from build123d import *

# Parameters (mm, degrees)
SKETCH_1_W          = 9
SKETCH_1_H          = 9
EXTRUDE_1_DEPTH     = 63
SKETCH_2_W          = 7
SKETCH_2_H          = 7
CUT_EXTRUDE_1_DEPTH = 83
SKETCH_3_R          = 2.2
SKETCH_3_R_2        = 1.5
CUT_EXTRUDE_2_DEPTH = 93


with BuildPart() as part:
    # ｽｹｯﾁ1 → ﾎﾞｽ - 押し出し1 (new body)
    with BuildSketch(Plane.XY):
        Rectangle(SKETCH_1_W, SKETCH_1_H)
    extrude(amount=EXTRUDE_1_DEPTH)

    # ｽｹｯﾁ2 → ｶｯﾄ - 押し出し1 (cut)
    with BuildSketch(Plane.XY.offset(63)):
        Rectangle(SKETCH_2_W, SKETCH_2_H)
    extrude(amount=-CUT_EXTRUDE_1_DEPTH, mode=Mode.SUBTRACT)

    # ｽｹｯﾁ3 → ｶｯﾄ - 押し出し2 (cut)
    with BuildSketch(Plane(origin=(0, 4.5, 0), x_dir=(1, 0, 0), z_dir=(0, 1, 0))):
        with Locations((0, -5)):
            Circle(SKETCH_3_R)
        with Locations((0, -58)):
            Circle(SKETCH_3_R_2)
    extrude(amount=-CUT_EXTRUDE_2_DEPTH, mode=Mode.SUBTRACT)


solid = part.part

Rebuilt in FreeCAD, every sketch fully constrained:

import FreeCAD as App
import Part
import Sketcher

doc = App.newDocument("Part")
body = doc.addObject("PartDesign::Body", "Body")

# Sketch on XY plane
sketch1 = body.newObject("Sketcher::SketchObject", "Sketch")
sketch1.AttachmentSupport = (doc.getObject("XY_Plane"), [""])
sketch1.MapMode = "FlatFace"
sketch1.addGeometry(Part.LineSegment(App.Vector(-4.5, 4.5, 0), App.Vector(-4.5, -4.5, 0)), False)
sketch1.addGeometry(Part.LineSegment(App.Vector(-4.5, -4.5, 0), App.Vector(4.5, -4.5, 0)), False)
sketch1.addGeometry(Part.LineSegment(App.Vector(4.5, -4.5, 0), App.Vector(4.5, 4.5, 0)), False)
sketch1.addGeometry(Part.LineSegment(App.Vector(4.5, 4.5, 0), App.Vector(-4.5, 4.5, 0)), False)
sketch1.addConstraint(Sketcher.Constraint("Coincident", 0, 2, 1, 1))
sketch1.addConstraint(Sketcher.Constraint("Coincident", 1, 2, 2, 1))
sketch1.addConstraint(Sketcher.Constraint("Coincident", 2, 2, 3, 1))
sketch1.addConstraint(Sketcher.Constraint("Coincident", 3, 2, 0, 1))
sketch1.addConstraint(Sketcher.Constraint("Vertical", 0))
sketch1.addConstraint(Sketcher.Constraint("Horizontal", 1))
sketch1.addConstraint(Sketcher.Constraint("Vertical", 2))
sketch1.addConstraint(Sketcher.Constraint("Horizontal", 3))
sketch1.addConstraint(Sketcher.Constraint("Symmetric", 0, 2, 2, 2, -1, 1))
sketch1.addConstraint(Sketcher.Constraint("Equal", 3, 0))
sketch1.addConstraint(Sketcher.Constraint("DistanceX", 1, 1, 1, 2, 9.0))
pad1 = body.newObject("PartDesign::Pad", "Pad")
pad1.Profile = sketch1
pad1.Length = 63

# Sketch on XY plane
sketch2 = body.newObject("Sketcher::SketchObject", "Sketch001")
sketch2.AttachmentSupport = (doc.getObject("XY_Plane"), [""])
sketch2.MapMode = "FlatFace"
sketch2.AttachmentOffset = App.Placement(App.Vector(0, 0, 63), App.Rotation())
sketch2.addGeometry(Part.LineSegment(App.Vector(-3.5, 3.5, 0), App.Vector(-3.5, -3.5, 0)), False)
sketch2.addGeometry(Part.LineSegment(App.Vector(-3.5, -3.5, 0), App.Vector(3.5, -3.5, 0)), False)
sketch2.addGeometry(Part.LineSegment(App.Vector(3.5, -3.5, 0), App.Vector(3.5, 3.5, 0)), False)
sketch2.addGeometry(Part.LineSegment(App.Vector(3.5, 3.5, 0), App.Vector(-3.5, 3.5, 0)), False)
sketch2.addConstraint(Sketcher.Constraint("Coincident", 0, 2, 1, 1))
sketch2.addConstraint(Sketcher.Constraint("Coincident", 1, 2, 2, 1))
sketch2.addConstraint(Sketcher.Constraint("Coincident", 2, 2, 3, 1))
sketch2.addConstraint(Sketcher.Constraint("Coincident", 3, 2, 0, 1))
sketch2.addConstraint(Sketcher.Constraint("Vertical", 0))
sketch2.addConstraint(Sketcher.Constraint("Horizontal", 1))
sketch2.addConstraint(Sketcher.Constraint("Vertical", 2))
sketch2.addConstraint(Sketcher.Constraint("Horizontal", 3))
sketch2.addConstraint(Sketcher.Constraint("Symmetric", 0, 2, 2, 2, -1, 1))
sketch2.addConstraint(Sketcher.Constraint("Equal", 3, 0))
sketch2.addConstraint(Sketcher.Constraint("DistanceX", 1, 1, 1, 2, 7.0))
pocket1 = body.newObject("PartDesign::Pocket", "Pocket")
pocket1.Profile = sketch2
pocket1.Length = 83

# Sketch on XZ plane
sketch3 = body.newObject("Sketcher::SketchObject", "Sketch002")
sketch3.AttachmentSupport = (doc.getObject("XZ_Plane"), [""])
sketch3.MapMode = "FlatFace"
sketch3.AttachmentOffset = App.Placement(App.Vector(0, 0, -4.5), App.Rotation())
sketch3.addGeometry(Part.Circle(App.Vector(0, 5, 0), App.Vector(0, 0, 1), 2.2), False)
sketch3.addGeometry(Part.Circle(App.Vector(0, 58, 0), App.Vector(0, 0, 1), 1.5), False)
sketch3.addConstraint(Sketcher.Constraint("PointOnObject", 0, 3, -2))
sketch3.addConstraint(Sketcher.Constraint("PointOnObject", 1, 3, -2))
sketch3.addConstraint(Sketcher.Constraint("Diameter", 1, 3.0))
sketch3.addConstraint(Sketcher.Constraint("Diameter", 0, 4.4))
sketch3.addConstraint(Sketcher.Constraint("DistanceY", -1, 1, 0, 3, 5.0))
sketch3.addConstraint(Sketcher.Constraint("DistanceY", -1, 1, 1, 3, 58.0))
pocket2 = body.newObject("PartDesign::Pocket", "Pocket001")
pocket2.Profile = sketch3
pocket2.Length = 93
pocket2.Reversed = True

doc.recompute()
